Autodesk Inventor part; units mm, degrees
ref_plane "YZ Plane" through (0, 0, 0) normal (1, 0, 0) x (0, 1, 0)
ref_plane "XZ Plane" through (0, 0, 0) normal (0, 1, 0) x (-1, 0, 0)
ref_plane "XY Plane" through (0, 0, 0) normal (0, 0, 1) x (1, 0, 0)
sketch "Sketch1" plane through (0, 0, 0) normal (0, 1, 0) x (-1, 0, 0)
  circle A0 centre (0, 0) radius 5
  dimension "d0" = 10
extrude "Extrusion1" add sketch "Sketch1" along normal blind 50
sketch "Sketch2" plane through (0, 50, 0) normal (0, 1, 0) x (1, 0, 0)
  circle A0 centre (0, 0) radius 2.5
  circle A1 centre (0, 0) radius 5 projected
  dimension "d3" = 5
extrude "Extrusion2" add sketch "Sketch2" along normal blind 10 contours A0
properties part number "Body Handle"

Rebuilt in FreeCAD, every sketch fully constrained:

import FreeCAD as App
import Part
import Sketcher
from FreeCAD import Vector

doc = App.newDocument("Part")
body = doc.addObject("PartDesign::Body", "Body")

sketch1 = body.newObject("Sketcher::SketchObject", "Sketch")
sketch1.AttachmentSupport = (doc.getObject("XZ_Plane"), [""])
sketch1.MapMode = "FlatFace"
sketch1.addGeometry(Part.Circle(Vector(0, 0, 0), Vector(0, 0, 1), 5), False)
sketch1.addConstraint([
    Sketcher.Constraint("Coincident", 0, 3, -1, 1),
    Sketcher.Constraint("Diameter", 0, 10.0),
])
pad1 = body.newObject("PartDesign::Pad", "Pad")
pad1.Profile = sketch1
pad1.Length = 50
pad1.Reversed = True

sketch2 = body.newObject("Sketcher::SketchObject", "Sketch001")
sketch2.AttachmentSupport = (doc.getObject("XZ_Plane"), [""])
sketch2.MapMode = "FlatFace"
sketch2.AttachmentOffset = App.Placement(Vector(0, 0, -50), App.Rotation())
sketch2.addGeometry(Part.Circle(Vector(0, 0, 0), Vector(0, 0, 1), 2.5), False)
sketch2.addConstraint([
    Sketcher.Constraint("Coincident", 0, 3, -1, 1),
    Sketcher.Constraint("Diameter", 0, 5.0),
])
pad2 = body.newObject("PartDesign::Pad", "Pad001")
pad2.Profile = sketch2
pad2.Length = 10
pad2.Reversed = True

doc.recompute()
